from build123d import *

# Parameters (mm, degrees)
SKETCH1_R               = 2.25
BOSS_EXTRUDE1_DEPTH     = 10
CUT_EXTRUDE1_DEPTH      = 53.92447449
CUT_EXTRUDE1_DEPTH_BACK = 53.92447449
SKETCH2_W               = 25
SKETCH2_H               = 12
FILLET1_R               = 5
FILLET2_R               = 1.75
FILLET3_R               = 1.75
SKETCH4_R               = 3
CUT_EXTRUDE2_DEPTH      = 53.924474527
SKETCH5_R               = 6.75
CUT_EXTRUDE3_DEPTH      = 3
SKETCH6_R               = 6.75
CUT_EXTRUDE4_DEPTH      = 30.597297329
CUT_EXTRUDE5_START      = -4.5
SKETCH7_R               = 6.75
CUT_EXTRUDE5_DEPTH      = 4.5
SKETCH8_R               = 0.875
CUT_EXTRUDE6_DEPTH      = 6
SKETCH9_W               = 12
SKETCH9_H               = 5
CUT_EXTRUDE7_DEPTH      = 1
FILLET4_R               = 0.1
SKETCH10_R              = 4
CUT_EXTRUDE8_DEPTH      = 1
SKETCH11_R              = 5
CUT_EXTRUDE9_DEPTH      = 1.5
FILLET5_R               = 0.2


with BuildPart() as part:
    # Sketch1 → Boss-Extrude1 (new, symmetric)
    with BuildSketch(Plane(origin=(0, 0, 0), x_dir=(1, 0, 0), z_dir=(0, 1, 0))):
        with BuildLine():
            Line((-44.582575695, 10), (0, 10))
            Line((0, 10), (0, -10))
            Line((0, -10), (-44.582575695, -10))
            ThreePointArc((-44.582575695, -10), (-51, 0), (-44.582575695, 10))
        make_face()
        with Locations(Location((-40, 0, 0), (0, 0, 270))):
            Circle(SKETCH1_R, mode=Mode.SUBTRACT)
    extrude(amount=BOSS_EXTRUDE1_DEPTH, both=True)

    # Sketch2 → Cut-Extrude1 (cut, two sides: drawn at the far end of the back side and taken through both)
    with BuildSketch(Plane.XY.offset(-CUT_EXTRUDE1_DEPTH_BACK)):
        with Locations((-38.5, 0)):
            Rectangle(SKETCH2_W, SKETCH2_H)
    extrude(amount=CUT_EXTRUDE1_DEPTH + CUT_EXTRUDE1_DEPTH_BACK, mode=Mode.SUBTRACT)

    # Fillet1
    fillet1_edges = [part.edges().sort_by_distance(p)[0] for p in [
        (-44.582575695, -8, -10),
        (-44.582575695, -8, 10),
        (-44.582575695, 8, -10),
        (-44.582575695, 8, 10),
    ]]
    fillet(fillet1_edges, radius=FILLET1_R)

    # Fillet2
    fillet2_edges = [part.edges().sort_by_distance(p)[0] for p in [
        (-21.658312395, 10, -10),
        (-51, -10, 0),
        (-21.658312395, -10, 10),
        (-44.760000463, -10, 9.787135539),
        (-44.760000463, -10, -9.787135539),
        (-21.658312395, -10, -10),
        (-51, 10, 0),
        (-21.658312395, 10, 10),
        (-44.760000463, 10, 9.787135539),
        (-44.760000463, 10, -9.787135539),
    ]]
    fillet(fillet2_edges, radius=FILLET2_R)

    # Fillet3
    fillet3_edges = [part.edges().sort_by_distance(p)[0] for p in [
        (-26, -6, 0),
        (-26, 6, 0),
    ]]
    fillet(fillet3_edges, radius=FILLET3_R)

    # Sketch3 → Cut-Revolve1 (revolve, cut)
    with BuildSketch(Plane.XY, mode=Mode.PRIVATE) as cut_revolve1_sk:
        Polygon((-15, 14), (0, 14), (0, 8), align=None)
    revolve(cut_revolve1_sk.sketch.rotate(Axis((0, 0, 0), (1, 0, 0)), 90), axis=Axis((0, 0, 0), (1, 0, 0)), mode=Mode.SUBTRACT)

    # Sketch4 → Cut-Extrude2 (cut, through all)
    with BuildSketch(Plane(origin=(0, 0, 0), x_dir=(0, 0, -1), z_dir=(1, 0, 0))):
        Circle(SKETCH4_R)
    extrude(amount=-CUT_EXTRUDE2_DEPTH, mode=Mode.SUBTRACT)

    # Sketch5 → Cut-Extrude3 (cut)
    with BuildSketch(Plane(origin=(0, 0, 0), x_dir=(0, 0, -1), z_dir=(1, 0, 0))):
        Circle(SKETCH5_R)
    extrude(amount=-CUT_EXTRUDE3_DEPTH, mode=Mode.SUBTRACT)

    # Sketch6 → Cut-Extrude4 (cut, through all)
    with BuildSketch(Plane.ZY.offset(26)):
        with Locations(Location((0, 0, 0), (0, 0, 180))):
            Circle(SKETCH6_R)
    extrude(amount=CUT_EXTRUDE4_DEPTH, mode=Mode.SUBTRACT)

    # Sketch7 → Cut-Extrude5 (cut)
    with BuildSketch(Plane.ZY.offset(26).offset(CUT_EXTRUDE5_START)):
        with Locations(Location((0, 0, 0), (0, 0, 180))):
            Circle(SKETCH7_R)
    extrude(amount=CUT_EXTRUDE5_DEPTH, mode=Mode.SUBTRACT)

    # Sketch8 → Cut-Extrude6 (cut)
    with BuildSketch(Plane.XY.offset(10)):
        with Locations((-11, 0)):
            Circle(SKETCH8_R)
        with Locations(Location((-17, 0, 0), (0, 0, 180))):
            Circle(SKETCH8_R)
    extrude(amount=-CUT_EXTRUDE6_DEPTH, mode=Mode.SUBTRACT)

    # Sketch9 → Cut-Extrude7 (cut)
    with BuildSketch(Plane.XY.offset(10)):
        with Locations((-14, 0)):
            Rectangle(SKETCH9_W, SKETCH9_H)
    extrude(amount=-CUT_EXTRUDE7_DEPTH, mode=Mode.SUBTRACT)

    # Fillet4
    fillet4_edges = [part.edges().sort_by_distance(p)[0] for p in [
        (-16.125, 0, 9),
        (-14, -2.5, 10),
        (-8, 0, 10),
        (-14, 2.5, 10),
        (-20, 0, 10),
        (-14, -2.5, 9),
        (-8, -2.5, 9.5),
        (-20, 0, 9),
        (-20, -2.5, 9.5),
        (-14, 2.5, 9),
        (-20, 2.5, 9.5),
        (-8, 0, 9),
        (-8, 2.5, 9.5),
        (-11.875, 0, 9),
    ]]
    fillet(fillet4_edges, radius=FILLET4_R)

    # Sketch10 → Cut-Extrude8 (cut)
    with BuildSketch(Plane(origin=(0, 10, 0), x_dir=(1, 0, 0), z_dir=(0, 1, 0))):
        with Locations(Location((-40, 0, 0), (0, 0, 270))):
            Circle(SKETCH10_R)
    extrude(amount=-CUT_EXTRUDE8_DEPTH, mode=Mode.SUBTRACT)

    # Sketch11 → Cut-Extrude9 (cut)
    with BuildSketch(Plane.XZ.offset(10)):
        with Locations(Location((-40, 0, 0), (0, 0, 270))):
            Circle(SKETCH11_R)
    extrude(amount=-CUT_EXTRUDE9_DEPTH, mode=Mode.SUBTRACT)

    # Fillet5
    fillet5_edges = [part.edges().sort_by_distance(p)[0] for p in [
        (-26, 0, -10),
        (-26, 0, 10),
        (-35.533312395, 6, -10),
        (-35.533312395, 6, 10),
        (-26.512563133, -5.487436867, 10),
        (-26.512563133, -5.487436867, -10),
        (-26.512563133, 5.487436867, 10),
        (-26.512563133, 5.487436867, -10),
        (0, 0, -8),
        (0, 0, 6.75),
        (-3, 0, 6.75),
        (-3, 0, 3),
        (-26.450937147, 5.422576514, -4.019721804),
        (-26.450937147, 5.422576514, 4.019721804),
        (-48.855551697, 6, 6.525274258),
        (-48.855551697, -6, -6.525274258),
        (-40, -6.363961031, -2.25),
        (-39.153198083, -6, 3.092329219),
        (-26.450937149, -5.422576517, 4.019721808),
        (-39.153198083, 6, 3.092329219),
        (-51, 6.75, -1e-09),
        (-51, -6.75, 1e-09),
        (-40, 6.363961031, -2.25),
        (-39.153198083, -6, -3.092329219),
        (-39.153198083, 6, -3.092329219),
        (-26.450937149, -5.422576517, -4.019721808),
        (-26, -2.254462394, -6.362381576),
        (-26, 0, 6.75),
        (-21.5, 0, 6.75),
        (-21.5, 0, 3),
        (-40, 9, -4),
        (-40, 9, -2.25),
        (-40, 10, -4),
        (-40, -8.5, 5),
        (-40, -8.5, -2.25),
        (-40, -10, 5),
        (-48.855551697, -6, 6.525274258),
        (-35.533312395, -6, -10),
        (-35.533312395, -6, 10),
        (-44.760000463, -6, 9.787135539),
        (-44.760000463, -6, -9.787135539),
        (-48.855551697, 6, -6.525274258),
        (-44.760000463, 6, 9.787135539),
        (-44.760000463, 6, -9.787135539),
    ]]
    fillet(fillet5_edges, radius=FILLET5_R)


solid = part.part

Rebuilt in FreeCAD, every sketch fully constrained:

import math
import FreeCAD as App
import Part
import Sketcher


def edges_at(feature, points):
    """Names of the edges that pass closest to the given points."""
    edges = feature.Shape.Edges
    near = lambda p: min(range(len(edges)), key=lambda i: edges[i].distToShape(Part.Vertex(*p))[0])
    return sorted({f"Edge{near(p) + 1}" for p in points})


def add_polygon(sketch, points):
    """Adds a closed chain of lines whose ends are joined by coincident constraints."""
    first, n = sketch.GeometryCount, len(points)
    for a, b in zip(points, points[1:] + points[:1]):
        sketch.addGeometry(Part.LineSegment(App.Vector(*a, 0), App.Vector(*b, 0)), False)
    for i in range(n):
        sketch.addConstraint(Sketcher.Constraint("Coincident", first + i, 2, first + (i + 1) % n, 1))

doc = App.newDocument("Part")
body = doc.addObject("PartDesign::Body", "Body")

sketch1 = doc.addObject("Sketcher::SketchObject", "Sketch")
body.addObject(sketch1)
sketch1.AttachmentSupport = (doc.XZ_Plane, [""])
sketch1.MapMode = "FlatFace"
sketch1.addGeometry(Part.LineSegment(App.Vector(0, -10, 0), App.Vector(-44.6, -10, 0)), False)
sketch1.addGeometry(Part.ArcOfCircle(Part.Circle(App.Vector(-40, 0, 0), App.Vector(0, 0, 1), 11), math.radians(115), math.radians(245)), False)
sketch1.addGeometry(Part.LineSegment(App.Vector(-44.6, 10, 0), App.Vector(0, 10, 0)), False)
sketch1.addGeometry(Part.LineSegment(App.Vector(0, 10, 0), App.Vector(0, -10, 0)), False)
sketch1.addGeometry(Part.Circle(App.Vector(-40, 0, 0), App.Vector(0, 0, 1), 2.2), False)
sketch1.addConstraint(Sketcher.Constraint("Coincident", 0, 2, 1, 2))
sketch1.addConstraint(Sketcher.Constraint("Coincident", 1, 1, 2, 1))
sketch1.addConstraint(Sketcher.Constraint("Coincident", 2, 2, 3, 1))
sketch1.addConstraint(Sketcher.Constraint("Coincident", 3, 2, 0, 1))
sketch1.addConstraint(Sketcher.Constraint("Horizontal", 0))
sketch1.addConstraint(Sketcher.Constraint("Horizontal", 2))
sketch1.addConstraint(Sketcher.Constraint("Vertical", 3))
sketch1.addConstraint(Sketcher.Constraint("Coincident", 4, 3, 1, 3))
sketch1.addConstraint(Sketcher.Constraint("Symmetric", 2, 2, 3, 2, -1, 1))
sketch1.addConstraint(Sketcher.Constraint("PointOnObject", 1, 3, -1))
sketch1.addConstraint(Sketcher.Constraint("Radius", 1, 11.0))
sketch1.addConstraint(Sketcher.Constraint("Diameter", 4, 4.5))
sketch1.addConstraint(Sketcher.Constraint("DistanceY", 3, 2, 3, 1, 20.0))
sketch1.addConstraint(Sketcher.Constraint("DistanceX", 1, 3, -1, 1, 40.0))
pad1 = doc.addObject("PartDesign::Pad", "Pad")
body.addObject(pad1)
pad1.Profile = sketch1
pad1.Length = 20
pad1.Midplane = True

sketch2 = doc.addObject("Sketcher::SketchObject", "Sketch001")
body.addObject(sketch2)
sketch2.AttachmentSupport = (doc.XY_Plane, [""])
sketch2.MapMode = "FlatFace"
add_polygon(sketch2, [(-51, 6), (-51, -6), (-26, -6), (-26, 6)])
sketch2.addConstraint(Sketcher.Constraint("Vertical", 0))
sketch2.addConstraint(Sketcher.Constraint("Horizontal", 1))
sketch2.addConstraint(Sketcher.Constraint("Vertical", 2))
sketch2.addConstraint(Sketcher.Constraint("Horizontal", 3))
sketch2.addConstraint(Sketcher.Constraint("DistanceX", 1, 1, 1, 2, 25.0))
sketch2.addConstraint(Sketcher.Constraint("DistanceY", 0, 2, 0, 1, 12.0))
sketch2.addConstraint(Sketcher.Constraint("DistanceX", 0, 2, -1, 1, 51.0))
sketch2.addConstraint(Sketcher.Constraint("DistanceY", 0, 2, -1, 1, 6.0))
pocket1 = doc.addObject("PartDesign::Pocket", "Pocket")
body.addObject(pocket1)
pocket1.Profile = sketch2
pocket1.Type = "ThroughAll"
pocket1.Midplane = True
doc.recompute()

fillet = doc.addObject("PartDesign::Fillet", "Fillet")
body.addObject(fillet)
fillet.Base = (pocket1, edges_at(pocket1, [
    (-44.583, -8, -10),
    (-44.583, -8, 10),
    (-44.583, 8, -10),
    (-44.583, 8, 10),
]))
fillet.Radius = 5
doc.recompute()

fillet2 = doc.addObject("PartDesign::Fillet", "Fillet001")
body.addObject(fillet2)
fillet2.Base = (fillet, edges_at(fillet, [
    (-21.658, 10, -10),
    (-51, -10, 0),
    (-21.658, -10, 10),
    (-44.76, -10, 9.787),
    (-44.76, -10, -9.787),
    (-21.658, -10, -10),
    (-51, 10, 0),
    (-21.658, 10, 10),
    (-44.76, 10, 9.787),
    (-44.76, 10, -9.787),
]))
fillet2.Radius = 1.75
doc.recompute()

fillet3 = doc.addObject("PartDesign::Fillet", "Fillet002")
body.addObject(fillet3)
fillet3.Base = (fillet2, edges_at(fillet2, [(-26, -6, 0), (-26, 6, 0)]))
fillet3.Radius = 1.75

sketch3 = doc.addObject("Sketcher::SketchObject", "Sketch002")
body.addObject(sketch3)
sketch3.AttachmentSupport = (doc.XY_Plane, [""])
sketch3.MapMode = "FlatFace"
add_polygon(sketch3, [(0, 14), (-15, 14), (0, 8)])
sketch3.addConstraint(Sketcher.Constraint("Horizontal", 0))
sketch3.addConstraint(Sketcher.Constraint("Vertical", 2))
sketch3.addConstraint(Sketcher.Constraint("PointOnObject", 1, 2, -2))
sketch3.addConstraint(Sketcher.Constraint("DistanceX", 0, 2, 0, 1, 15.0))
sketch3.addConstraint(Sketcher.Constraint("DistanceY", 2, 1, 2, 2, 6.0))
sketch3.addConstraint(Sketcher.Constraint("DistanceY", -1, 1, 0, 2, 14.0))
groove = doc.addObject("PartDesign::Groove", "Groove")
body.addObject(groove)
groove.Profile = sketch3
groove.ReferenceAxis = (sketch3, ["H_Axis"])
groove.Angle = 360

sketch4 = doc.addObject("Sketcher::SketchObject", "Sketch003")
body.addObject(sketch4)
sketch4.AttachmentSupport = (doc.YZ_Plane, [""])
sketch4.MapMode = "FlatFace"
sketch4.addGeometry(Part.Circle(App.Vector(0, 0, 0), App.Vector(0, 0, 1), 3), False)
sketch4.addConstraint(Sketcher.Constraint("Coincident", 0, 3, -1, 1))
sketch4.addConstraint(Sketcher.Constraint("Diameter", 0, 6.0))
pocket2 = doc.addObject("PartDesign::Pocket", "Pocket001")
body.addObject(pocket2)
pocket2.Profile = sketch4
pocket2.Type = "ThroughAll"

sketch5 = doc.addObject("Sketcher::SketchObject", "Sketch004")
body.addObject(sketch5)
sketch5.AttachmentSupport = (doc.YZ_Plane, [""])
sketch5.MapMode = "FlatFace"
sketch5.addGeometry(Part.Circle(App.Vector(0, 0, 0), App.Vector(0, 0, 1), 7), False)
sketch5.addConstraint(Sketcher.Constraint("Coincident", 0, 3, -1, 1))
sketch5.addConstraint(Sketcher.Constraint("Diameter", 0, 13.5))
pocket3 = doc.addObject("PartDesign::Pocket", "Pocket002")
body.addObject(pocket3)
pocket3.Profile = sketch5
pocket3.Length = 3

sketch6 = doc.addObject("Sketcher::SketchObject", "Sketch005")
body.addObject(sketch6)
sketch6.AttachmentSupport = (doc.YZ_Plane, [""])
sketch6.MapMode = "FlatFace"
sketch6.AttachmentOffset = App.Placement(App.Vector(0, 0, -26), App.Rotation())
sketch6.addGeometry(Part.Circle(App.Vector(0, 0, 0), App.Vector(0, 0, 1), 7), False)
sketch6.addConstraint(Sketcher.Constraint("Coincident", 0, 3, -1, 1))
sketch6.addConstraint(Sketcher.Constraint("Diameter", 0, 13.5))
pocket4 = doc.addObject("PartDesign::Pocket", "Pocket003")
body.addObject(pocket4)
pocket4.Profile = sketch6
pocket4.Type = "ThroughAll"

sketch7 = doc.addObject("Sketcher::SketchObject", "Sketch006")
body.addObject(sketch7)
sketch7.AttachmentSupport = (doc.YZ_Plane, [""])
sketch7.MapMode = "FlatFace"
sketch7.AttachmentOffset = App.Placement(App.Vector(0, 0, -21.5), App.Rotation())
sketch7.addGeometry(Part.Circle(App.Vector(0, 0, 0), App.Vector(0, 0, 1), 7), False)
sketch7.addConstraint(Sketcher.Constraint("Coincident", 0, 3, -1, 1))
sketch7.addConstraint(Sketcher.Constraint("Diameter", 0, 13.5))
pocket5 = doc.addObject("PartDesign::Pocket", "Pocket004")
body.addObject(pocket5)
pocket5.Profile = sketch7
pocket5.Length = 4.5

sketch8 = doc.addObject("Sketcher::SketchObject", "Sketch007")
body.addObject(sketch8)
sketch8.AttachmentSupport = (doc.XY_Plane, [""])
sketch8.MapMode = "FlatFace"
sketch8.AttachmentOffset = App.Placement(App.Vector(0, 0, 10), App.Rotation())
sketch8.addGeometry(Part.Circle(App.Vector(-11, 0, 0), App.Vector(0, 0, 1), 0.9), False)
sketch8.addGeometry(Part.Circle(App.Vector(-17, 0, 0), App.Vector(0, 0, 1), 0.9), False)
sketch8.addConstraint(Sketcher.Constraint("Equal", 0, 1))
sketch8.addConstraint(Sketcher.Constraint("PointOnObject", 0, 3, -1))
sketch8.addConstraint(Sketcher.Constraint("PointOnObject", 1, 3, -1))
sketch8.addConstraint(Sketcher.Constraint("Diameter", 0, 1.75))
sketch8.addConstraint(Sketcher.Constraint("DistanceX", 0, 3, -1, 1, 11.0))
sketch8.addConstraint(Sketcher.Constraint("DistanceX", 1, 3, -1, 1, 17.0))
pocket6 = doc.addObject("PartDesign::Pocket", "Pocket005")
body.addObject(pocket6)
pocket6.Profile = sketch8
pocket6.Length = 6

sketch9 = doc.addObject("Sketcher::SketchObject", "Sketch008")
body.addObject(sketch9)
sketch9.AttachmentSupport = (doc.XY_Plane, [""])
sketch9.MapMode = "FlatFace"
sketch9.AttachmentOffset = App.Placement(App.Vector(0, 0, 10), App.Rotation())
add_polygon(sketch9, [(-20, 2), (-20, -2), (-8, -2), (-8, 2)])
sketch9.addConstraint(Sketcher.Constraint("Vertical", 0))
sketch9.addConstraint(Sketcher.Constraint("Horizontal", 1))
sketch9.addConstraint(Sketcher.Constraint("Vertical", 2))
sketch9.addConstraint(Sketcher.Constraint("Horizontal", 3))
sketch9.addConstraint(Sketcher.Constraint("DistanceX", 1, 1, 1, 2, 12.0))
sketch9.addConstraint(Sketcher.Constraint("DistanceY", 0, 2, 0, 1, 5.0))
sketch9.addConstraint(Sketcher.Constraint("DistanceX", 0, 2, -1, 1, 20.0))
sketch9.addConstraint(Sketcher.Constraint("DistanceY", 0, 2, -1, 1, 2.5))
pocket7 = doc.addObject("PartDesign::Pocket", "Pocket006")
body.addObject(pocket7)
pocket7.Profile = sketch9
pocket7.Length = 1
doc.recompute()

fillet4 = doc.addObject("PartDesign::Fillet", "Fillet003")
body.addObject(fillet4)
fillet4.Base = (pocket7, edges_at(pocket7, [
    (-16.125, 0, 9),
    (-14, -2.5, 10),
    (-8, 0, 10),
    (-14, 2.5, 10),
    (-20, 0, 10),
    (-14, -2.5, 9),
    (-8, -2.5, 9.5),
    (-20, 0, 9),
    (-20, -2.5, 9.5),
    (-14, 2.5, 9),
    (-20, 2.5, 9.5),
    (-8, 0, 9),
    (-8, 2.5, 9.5),
    (-11.875, 0, 9),
]))
fillet4.Radius = 0.1

sketch10 = doc.addObject("Sketcher::SketchObject", "Sketch009")
body.addObject(sketch10)
sketch10.AttachmentSupport = (doc.XZ_Plane, [""])
sketch10.MapMode = "FlatFace"
sketch10.AttachmentOffset = App.Placement(App.Vector(0, 0, -10), App.Rotation())
sketch10.addGeometry(Part.Circle(App.Vector(-40, 0, 0), App.Vector(0, 0, 1), 4), False)
sketch10.addConstraint(Sketcher.Constraint("PointOnObject", 0, 3, -1))
sketch10.addConstraint(Sketcher.Constraint("Diameter", 0, 8.0))
sketch10.addConstraint(Sketcher.Constraint("DistanceX", 0, 3, -1, 1, 40.0))
pocket8 = doc.addObject("PartDesign::Pocket", "Pocket007")
body.addObject(pocket8)
pocket8.Profile = sketch10
pocket8.Length = 1
pocket8.Reversed = True

sketch11 = doc.addObject("Sketcher::SketchObject", "Sketch010")
body.addObject(sketch11)
sketch11.AttachmentSupport = (doc.XZ_Plane, [""])
sketch11.MapMode = "FlatFace"
sketch11.AttachmentOffset = App.Placement(App.Vector(0, 0, 10), App.Rotation())
sketch11.addGeometry(Part.Circle(App.Vector(-40, 0, 0), App.Vector(0, 0, 1), 5), False)
sketch11.addConstraint(Sketcher.Constraint("PointOnObject", 0, 3, -1))
sketch11.addConstraint(Sketcher.Constraint("Diameter", 0, 10.0))
sketch11.addConstraint(Sketcher.Constraint("DistanceX", 0, 3, -1, 1, 40.0))
pocket9 = doc.addObject("PartDesign::Pocket", "Pocket008")
body.addObject(pocket9)
pocket9.Profile = sketch11
pocket9.Length = 1.5
doc.recompute()

fillet5 = doc.addObject("PartDesign::Fillet", "Fillet004")
body.addObject(fillet5)
fillet5.Base = (pocket9, edges_at(pocket9, [
    (-26, 0, -10),
    (-26, 0, 10),
    (-35.533, 6, -10),
    (-35.533, 6, 10),
    (-26.513, -5.487, 10),
    (-26.513, -5.487, -10),
    (-26.513, 5.487, 10),
    (-26.513, 5.487, -10),
    (0, 0, -8),
    (0, 0, 6.75),
    (-3, 0, 6.75),
    (-3, 0, 3),
    (-26.451, 5.423, -4.02),
    (-26.451, 5.423, 4.02),
    (-48.856, 6, 6.525),
    (-48.856, -6, -6.525),
    (-40, -6.364, -2.25),
    (-39.153, -6, 3.092),
    (-26.451, -5.423, 4.02),
    (-39.153, 6, 3.092),
    (-51, 6.75, 0),
    (-51, -6.75, 0),
    (-40, 6.364, -2.25),
    (-39.153, -6, -3.092),
    (-39.153, 6, -3.092),
    (-26.451, -5.423, -4.02),
    (-26, -2.254, -6.362),
    (-26, 0, 6.75),
    (-21.5, 0, 6.75),
    (-21.5, 0, 3),
    (-40, 9, -4),
    (-40, 9, -2.25),
    (-40, 10, -4),
    (-40, -8.5, 5),
    (-40, -8.5, -2.25),
    (-40, -10, 5),
    (-48.856, -6, 6.525),
    (-35.533, -6, -10),
    (-35.533, -6, 10),
    (-44.76, -6, 9.787),
    (-44.76, -6, -9.787),
    (-48.856, 6, -6.525),
    (-44.76, 6, 9.787),
    (-44.76, 6, -9.787),
]))
fillet5.Radius = 0.2

doc.recompute()
